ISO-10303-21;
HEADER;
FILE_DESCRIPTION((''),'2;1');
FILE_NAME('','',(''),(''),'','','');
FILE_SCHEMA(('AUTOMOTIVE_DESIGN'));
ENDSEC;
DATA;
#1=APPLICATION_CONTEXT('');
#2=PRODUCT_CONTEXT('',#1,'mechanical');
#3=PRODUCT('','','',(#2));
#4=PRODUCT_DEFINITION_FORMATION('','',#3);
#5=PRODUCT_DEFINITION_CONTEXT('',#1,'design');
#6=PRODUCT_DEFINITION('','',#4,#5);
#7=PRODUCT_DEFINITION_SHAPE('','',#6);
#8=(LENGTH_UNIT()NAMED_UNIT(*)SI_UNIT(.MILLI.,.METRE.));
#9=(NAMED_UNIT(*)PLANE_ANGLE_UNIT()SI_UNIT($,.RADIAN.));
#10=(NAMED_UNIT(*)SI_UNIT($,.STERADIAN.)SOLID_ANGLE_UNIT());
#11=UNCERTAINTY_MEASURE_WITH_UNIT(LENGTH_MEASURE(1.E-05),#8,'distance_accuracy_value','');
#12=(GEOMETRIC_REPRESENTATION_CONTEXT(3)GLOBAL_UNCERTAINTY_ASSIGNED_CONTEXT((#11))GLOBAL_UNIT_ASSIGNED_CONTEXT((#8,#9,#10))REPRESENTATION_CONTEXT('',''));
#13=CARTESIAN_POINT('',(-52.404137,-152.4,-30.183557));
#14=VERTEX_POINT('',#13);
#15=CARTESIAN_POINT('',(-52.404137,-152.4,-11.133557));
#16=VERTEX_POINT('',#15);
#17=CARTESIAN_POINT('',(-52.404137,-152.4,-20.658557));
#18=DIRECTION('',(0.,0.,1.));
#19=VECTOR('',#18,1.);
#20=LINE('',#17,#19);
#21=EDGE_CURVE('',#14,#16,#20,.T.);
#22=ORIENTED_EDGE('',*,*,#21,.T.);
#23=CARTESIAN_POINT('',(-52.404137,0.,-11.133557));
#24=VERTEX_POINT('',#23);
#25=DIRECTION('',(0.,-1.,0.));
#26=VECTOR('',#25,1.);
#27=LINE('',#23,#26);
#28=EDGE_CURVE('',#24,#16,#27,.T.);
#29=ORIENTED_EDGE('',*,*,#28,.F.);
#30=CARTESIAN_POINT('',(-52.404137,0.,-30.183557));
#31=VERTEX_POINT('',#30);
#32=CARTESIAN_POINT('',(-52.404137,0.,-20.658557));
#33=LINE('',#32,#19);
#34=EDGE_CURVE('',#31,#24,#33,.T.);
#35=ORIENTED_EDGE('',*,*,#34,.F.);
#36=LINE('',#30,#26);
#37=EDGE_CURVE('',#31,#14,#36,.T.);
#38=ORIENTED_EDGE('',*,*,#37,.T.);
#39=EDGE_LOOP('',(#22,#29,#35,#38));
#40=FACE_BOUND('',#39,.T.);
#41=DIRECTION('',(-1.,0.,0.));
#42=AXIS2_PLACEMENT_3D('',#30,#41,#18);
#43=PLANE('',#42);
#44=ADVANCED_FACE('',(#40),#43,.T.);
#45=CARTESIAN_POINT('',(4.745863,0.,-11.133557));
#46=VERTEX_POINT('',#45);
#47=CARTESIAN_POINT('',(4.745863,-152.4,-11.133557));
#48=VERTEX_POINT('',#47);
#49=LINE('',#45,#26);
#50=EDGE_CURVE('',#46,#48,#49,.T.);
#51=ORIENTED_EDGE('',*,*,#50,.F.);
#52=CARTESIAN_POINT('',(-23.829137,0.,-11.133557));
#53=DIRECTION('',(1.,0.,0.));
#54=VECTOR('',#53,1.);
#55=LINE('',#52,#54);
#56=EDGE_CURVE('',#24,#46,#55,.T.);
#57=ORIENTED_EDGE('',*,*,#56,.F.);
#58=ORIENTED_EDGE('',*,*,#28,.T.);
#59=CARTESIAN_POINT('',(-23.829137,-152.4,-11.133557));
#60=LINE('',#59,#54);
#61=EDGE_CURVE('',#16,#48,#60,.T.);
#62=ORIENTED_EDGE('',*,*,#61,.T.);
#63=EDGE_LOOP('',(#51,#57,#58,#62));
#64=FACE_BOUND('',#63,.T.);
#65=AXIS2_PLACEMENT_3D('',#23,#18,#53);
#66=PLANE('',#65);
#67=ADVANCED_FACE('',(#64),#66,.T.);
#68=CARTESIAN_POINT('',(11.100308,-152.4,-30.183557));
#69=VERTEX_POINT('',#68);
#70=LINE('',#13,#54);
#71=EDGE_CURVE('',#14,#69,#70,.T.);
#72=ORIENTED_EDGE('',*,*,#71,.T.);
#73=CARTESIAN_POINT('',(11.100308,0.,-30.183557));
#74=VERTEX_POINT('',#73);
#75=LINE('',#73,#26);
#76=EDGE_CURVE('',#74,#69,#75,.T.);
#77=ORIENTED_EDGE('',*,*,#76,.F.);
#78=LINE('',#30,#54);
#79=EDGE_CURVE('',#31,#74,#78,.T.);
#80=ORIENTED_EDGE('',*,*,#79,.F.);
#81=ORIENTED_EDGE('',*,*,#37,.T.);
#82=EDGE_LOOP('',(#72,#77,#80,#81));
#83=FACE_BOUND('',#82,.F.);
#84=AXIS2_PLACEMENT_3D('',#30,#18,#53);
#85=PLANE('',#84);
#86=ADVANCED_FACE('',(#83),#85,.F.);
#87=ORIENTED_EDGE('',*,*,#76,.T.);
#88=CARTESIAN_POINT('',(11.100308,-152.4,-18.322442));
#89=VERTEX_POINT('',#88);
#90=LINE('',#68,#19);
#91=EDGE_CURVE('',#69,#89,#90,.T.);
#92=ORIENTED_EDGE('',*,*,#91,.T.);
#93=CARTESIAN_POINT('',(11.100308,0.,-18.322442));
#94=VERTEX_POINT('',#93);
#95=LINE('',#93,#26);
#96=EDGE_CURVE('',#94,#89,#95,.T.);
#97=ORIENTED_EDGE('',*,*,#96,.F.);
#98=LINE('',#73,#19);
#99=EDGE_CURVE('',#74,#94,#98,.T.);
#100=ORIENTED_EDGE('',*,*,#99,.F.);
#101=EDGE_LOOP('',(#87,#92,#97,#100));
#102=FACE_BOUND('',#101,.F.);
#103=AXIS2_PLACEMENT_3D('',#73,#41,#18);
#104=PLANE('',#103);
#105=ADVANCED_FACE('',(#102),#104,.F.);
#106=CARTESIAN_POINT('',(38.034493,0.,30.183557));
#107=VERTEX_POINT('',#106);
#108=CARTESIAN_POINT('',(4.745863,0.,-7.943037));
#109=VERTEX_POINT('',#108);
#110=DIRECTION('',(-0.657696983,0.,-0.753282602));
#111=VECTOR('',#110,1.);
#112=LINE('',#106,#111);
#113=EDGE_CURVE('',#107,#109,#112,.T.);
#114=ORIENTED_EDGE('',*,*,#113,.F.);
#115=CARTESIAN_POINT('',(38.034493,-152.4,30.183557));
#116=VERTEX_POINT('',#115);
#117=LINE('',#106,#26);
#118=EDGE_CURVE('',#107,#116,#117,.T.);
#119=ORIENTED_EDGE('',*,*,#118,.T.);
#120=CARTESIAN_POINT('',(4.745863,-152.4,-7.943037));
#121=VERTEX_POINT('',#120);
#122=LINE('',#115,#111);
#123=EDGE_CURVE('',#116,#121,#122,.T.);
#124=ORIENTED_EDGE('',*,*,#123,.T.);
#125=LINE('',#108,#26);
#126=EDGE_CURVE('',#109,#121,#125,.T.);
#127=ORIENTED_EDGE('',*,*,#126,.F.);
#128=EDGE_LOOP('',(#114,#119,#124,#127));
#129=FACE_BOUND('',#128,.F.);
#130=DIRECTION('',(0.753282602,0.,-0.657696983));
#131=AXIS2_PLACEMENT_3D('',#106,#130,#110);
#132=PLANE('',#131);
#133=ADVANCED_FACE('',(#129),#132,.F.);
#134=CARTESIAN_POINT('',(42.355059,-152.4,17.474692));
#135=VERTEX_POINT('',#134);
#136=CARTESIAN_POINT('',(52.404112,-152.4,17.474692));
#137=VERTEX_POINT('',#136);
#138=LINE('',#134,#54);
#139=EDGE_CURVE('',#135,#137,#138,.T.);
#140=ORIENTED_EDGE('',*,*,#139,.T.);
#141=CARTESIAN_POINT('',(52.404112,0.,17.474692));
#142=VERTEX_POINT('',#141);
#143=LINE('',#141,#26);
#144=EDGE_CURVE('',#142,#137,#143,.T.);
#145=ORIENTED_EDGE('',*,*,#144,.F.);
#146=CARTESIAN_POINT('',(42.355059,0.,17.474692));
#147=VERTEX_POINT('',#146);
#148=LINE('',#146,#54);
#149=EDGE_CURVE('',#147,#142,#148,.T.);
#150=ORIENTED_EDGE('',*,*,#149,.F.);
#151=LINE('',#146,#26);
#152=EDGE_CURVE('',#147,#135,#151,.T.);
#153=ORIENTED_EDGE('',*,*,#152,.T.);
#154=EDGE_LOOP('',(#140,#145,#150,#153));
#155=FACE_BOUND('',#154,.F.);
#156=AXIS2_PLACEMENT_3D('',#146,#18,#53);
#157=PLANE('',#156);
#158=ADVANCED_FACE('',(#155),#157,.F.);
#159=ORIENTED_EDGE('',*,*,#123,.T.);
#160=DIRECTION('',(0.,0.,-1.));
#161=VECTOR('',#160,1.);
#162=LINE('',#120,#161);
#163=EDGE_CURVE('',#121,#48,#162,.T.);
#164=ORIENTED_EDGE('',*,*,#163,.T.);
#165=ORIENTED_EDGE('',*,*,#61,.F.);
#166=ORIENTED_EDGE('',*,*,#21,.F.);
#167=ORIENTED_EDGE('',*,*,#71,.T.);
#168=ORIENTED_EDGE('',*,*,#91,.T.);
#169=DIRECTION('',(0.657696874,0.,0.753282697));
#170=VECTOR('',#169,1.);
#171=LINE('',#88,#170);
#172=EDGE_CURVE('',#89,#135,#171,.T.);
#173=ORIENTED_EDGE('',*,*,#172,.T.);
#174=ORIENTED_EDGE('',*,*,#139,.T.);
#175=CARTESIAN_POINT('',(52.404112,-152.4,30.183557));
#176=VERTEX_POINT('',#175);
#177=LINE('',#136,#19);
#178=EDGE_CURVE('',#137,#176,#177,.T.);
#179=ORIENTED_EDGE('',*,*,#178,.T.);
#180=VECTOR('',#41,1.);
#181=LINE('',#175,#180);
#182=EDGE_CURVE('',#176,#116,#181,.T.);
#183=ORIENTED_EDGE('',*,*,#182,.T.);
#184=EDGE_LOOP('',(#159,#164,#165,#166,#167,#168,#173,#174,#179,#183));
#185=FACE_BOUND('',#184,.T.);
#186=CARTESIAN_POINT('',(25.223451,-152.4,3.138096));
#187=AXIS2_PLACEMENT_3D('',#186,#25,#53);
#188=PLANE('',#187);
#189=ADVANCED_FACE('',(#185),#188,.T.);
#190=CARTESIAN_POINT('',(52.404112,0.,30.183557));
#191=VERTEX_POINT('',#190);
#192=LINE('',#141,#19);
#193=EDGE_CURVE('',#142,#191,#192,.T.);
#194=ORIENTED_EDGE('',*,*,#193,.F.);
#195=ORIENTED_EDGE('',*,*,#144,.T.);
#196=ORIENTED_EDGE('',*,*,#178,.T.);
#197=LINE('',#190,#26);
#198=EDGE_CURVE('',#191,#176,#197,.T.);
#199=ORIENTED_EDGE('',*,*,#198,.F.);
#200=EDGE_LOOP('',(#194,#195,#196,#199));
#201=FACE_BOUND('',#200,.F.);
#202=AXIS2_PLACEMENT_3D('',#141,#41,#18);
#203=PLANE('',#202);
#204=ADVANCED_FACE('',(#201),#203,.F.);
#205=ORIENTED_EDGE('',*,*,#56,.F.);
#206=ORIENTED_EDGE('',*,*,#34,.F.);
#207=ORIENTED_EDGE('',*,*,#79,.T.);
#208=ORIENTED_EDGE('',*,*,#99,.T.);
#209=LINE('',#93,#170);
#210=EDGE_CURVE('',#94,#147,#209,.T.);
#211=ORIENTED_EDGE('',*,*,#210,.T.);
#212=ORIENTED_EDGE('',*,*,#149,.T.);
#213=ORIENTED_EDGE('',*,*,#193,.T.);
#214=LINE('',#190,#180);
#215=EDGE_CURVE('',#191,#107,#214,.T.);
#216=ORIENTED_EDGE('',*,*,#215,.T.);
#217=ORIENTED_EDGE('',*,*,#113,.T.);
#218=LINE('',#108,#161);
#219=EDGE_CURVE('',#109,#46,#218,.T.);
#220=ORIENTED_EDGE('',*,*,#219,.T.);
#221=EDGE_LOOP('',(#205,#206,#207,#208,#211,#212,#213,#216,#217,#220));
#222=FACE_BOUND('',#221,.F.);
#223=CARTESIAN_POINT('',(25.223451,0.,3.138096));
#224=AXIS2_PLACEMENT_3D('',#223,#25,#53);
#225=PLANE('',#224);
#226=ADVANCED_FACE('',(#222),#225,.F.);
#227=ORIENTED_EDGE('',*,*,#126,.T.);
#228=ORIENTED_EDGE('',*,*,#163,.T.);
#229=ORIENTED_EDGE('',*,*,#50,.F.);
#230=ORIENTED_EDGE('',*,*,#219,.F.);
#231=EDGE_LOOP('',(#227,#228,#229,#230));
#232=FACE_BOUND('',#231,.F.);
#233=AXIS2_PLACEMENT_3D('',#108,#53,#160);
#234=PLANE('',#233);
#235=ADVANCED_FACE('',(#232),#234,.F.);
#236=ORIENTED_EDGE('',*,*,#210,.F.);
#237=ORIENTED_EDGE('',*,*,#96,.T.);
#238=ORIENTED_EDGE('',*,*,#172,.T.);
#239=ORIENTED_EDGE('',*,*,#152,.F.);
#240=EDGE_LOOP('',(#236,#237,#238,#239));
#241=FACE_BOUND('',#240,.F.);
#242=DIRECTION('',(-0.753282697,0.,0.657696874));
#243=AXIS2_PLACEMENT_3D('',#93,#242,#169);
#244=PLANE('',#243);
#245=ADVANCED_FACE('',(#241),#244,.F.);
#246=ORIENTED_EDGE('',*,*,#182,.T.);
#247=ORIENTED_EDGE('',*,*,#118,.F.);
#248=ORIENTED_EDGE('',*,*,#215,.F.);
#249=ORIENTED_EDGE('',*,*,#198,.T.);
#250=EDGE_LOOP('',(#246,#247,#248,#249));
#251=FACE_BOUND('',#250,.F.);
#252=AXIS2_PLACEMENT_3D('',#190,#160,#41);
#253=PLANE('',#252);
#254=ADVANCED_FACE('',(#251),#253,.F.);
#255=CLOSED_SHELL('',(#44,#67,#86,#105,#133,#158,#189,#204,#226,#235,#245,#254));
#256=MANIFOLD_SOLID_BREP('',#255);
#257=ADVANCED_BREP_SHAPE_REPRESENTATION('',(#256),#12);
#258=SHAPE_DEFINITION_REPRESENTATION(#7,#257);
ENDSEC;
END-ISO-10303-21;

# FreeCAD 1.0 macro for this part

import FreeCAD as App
import Part
import Sketcher
Q = App.Units.Quantity

doc = App.newDocument("Part")
params = doc.addObject("Spreadsheet::Sheet", "Params")
for row, (alias, value) in enumerate([
    ("sketch1_width", "2.25 in"),
    ("sketch1_height", "0.75 in"),
    ("pad1_length", "6 in"),
], start=1):
    params.set(f"A{row}", alias)
    params.set(f"B{row}", "=" + value)
    params.setAlias(f"B{row}", alias)

body = doc.addObject("PartDesign::Body", "Body")

sketch1 = body.newObject("Sketcher::SketchObject", "Sketch")
sketch1.AttachmentSupport = (doc.getObject("XZ_Plane"), [""])
sketch1.MapMode = "FlatFace"
sketch1.addGeometry([
    Part.LineSegment(App.Vector(11.1, -30.2, 0), App.Vector(11.1, -18.3, 0)),
    Part.LineSegment(App.Vector(11.1, -18.3, 0), App.Vector(42.4, 17.5, 0)),
    Part.LineSegment(App.Vector(42.4, 17.5, 0), App.Vector(52.4, 17.5, 0)),
    Part.LineSegment(App.Vector(52.4, 17.5, 0), App.Vector(52.4, 30.2, 0)),
    Part.LineSegment(App.Vector(52.4, 30.2, 0), App.Vector(38, 30.2, 0)),
    Part.LineSegment(App.Vector(38, 30.2, 0), App.Vector(4.7, -7.9, 0)),
    Part.LineSegment(App.Vector(4.7, -7.9, 0), App.Vector(4.7, -11.1, 0)),
    Part.LineSegment(App.Vector(4.7, -11.1, 0), App.Vector(-52.4, -11.1, 0)),
    Part.LineSegment(App.Vector(-52.4, -11.1, 0), App.Vector(-52.4, -30.2, 0)),
    Part.LineSegment(App.Vector(-52.4, -30.2, 0), App.Vector(11.1, -30.2, 0)),
], False)
sketch1.addConstraint([
    Sketcher.Constraint("Coincident", 0, 2, 1, 1),
    Sketcher.Constraint("Coincident", 1, 2, 2, 1),
    Sketcher.Constraint("Coincident", 2, 2, 3, 1),
    Sketcher.Constraint("Coincident", 3, 2, 4, 1),
    Sketcher.Constraint("Coincident", 4, 2, 5, 1),
    Sketcher.Constraint("Coincident", 5, 2, 6, 1),
    Sketcher.Constraint("Coincident", 6, 2, 7, 1),
    Sketcher.Constraint("Coincident", 7, 2, 8, 1),
    Sketcher.Constraint("Coincident", 8, 2, 9, 1),
    Sketcher.Constraint("Coincident", 9, 2, 0, 1),
    Sketcher.Constraint("Vertical", 0),
    Sketcher.Constraint("Horizontal", 2),
    Sketcher.Constraint("Vertical", 3),
    Sketcher.Constraint("Horizontal", 4),
    Sketcher.Constraint("Vertical", 6),
    Sketcher.Constraint("Horizontal", 7),
    Sketcher.Constraint("Vertical", 8),
    Sketcher.Constraint("Horizontal", 9),
    Sketcher.Constraint("Parallel", 1, 5),
    Sketcher.Constraint("DistanceX", 7, 2, 7, 1, Q("2.25 in")),
    Sketcher.Constraint("DistanceY", 8, 2, 8, 1, Q("0.75 in")),
    Sketcher.Constraint("DistanceX", 4, 2, 4, 1, Q("14.369619 mm")),
    Sketcher.Constraint("DistanceY", 6, 2, 6, 1, Q("3.19052 mm")),
    Sketcher.Constraint("DistanceY", 0, 2, 3, 2, Q("48.505999 mm")),
    Sketcher.Constraint("Distance", 5, Q("50.613931 mm")),
    Sketcher.Constraint("DistanceX", 2, 1, 2, 2, Q("10.049053 mm")),
    Sketcher.Constraint("DistanceX", 9, 1, 9, 2, Q("63.504445 mm")),
    Sketcher.Constraint("DistanceY", 0, 1, 0, 2, Q("11.861115 mm")),
    Sketcher.Constraint("DistanceY", 0, 2, -1, 1, Q("18.322442 mm")),
    Sketcher.Constraint("DistanceX", -1, 1, 1, 2, Q("42.355059 mm")),
])
sketch1.setExpression("Constraints[19]", "Params.sketch1_width")
sketch1.setExpression("Constraints[20]", "Params.sketch1_height")
pad1 = body.newObject("PartDesign::Pad", "Pad")
pad1.Profile = sketch1
pad1.setExpression("Length", "Params.pad1_length")

doc.recompute()
